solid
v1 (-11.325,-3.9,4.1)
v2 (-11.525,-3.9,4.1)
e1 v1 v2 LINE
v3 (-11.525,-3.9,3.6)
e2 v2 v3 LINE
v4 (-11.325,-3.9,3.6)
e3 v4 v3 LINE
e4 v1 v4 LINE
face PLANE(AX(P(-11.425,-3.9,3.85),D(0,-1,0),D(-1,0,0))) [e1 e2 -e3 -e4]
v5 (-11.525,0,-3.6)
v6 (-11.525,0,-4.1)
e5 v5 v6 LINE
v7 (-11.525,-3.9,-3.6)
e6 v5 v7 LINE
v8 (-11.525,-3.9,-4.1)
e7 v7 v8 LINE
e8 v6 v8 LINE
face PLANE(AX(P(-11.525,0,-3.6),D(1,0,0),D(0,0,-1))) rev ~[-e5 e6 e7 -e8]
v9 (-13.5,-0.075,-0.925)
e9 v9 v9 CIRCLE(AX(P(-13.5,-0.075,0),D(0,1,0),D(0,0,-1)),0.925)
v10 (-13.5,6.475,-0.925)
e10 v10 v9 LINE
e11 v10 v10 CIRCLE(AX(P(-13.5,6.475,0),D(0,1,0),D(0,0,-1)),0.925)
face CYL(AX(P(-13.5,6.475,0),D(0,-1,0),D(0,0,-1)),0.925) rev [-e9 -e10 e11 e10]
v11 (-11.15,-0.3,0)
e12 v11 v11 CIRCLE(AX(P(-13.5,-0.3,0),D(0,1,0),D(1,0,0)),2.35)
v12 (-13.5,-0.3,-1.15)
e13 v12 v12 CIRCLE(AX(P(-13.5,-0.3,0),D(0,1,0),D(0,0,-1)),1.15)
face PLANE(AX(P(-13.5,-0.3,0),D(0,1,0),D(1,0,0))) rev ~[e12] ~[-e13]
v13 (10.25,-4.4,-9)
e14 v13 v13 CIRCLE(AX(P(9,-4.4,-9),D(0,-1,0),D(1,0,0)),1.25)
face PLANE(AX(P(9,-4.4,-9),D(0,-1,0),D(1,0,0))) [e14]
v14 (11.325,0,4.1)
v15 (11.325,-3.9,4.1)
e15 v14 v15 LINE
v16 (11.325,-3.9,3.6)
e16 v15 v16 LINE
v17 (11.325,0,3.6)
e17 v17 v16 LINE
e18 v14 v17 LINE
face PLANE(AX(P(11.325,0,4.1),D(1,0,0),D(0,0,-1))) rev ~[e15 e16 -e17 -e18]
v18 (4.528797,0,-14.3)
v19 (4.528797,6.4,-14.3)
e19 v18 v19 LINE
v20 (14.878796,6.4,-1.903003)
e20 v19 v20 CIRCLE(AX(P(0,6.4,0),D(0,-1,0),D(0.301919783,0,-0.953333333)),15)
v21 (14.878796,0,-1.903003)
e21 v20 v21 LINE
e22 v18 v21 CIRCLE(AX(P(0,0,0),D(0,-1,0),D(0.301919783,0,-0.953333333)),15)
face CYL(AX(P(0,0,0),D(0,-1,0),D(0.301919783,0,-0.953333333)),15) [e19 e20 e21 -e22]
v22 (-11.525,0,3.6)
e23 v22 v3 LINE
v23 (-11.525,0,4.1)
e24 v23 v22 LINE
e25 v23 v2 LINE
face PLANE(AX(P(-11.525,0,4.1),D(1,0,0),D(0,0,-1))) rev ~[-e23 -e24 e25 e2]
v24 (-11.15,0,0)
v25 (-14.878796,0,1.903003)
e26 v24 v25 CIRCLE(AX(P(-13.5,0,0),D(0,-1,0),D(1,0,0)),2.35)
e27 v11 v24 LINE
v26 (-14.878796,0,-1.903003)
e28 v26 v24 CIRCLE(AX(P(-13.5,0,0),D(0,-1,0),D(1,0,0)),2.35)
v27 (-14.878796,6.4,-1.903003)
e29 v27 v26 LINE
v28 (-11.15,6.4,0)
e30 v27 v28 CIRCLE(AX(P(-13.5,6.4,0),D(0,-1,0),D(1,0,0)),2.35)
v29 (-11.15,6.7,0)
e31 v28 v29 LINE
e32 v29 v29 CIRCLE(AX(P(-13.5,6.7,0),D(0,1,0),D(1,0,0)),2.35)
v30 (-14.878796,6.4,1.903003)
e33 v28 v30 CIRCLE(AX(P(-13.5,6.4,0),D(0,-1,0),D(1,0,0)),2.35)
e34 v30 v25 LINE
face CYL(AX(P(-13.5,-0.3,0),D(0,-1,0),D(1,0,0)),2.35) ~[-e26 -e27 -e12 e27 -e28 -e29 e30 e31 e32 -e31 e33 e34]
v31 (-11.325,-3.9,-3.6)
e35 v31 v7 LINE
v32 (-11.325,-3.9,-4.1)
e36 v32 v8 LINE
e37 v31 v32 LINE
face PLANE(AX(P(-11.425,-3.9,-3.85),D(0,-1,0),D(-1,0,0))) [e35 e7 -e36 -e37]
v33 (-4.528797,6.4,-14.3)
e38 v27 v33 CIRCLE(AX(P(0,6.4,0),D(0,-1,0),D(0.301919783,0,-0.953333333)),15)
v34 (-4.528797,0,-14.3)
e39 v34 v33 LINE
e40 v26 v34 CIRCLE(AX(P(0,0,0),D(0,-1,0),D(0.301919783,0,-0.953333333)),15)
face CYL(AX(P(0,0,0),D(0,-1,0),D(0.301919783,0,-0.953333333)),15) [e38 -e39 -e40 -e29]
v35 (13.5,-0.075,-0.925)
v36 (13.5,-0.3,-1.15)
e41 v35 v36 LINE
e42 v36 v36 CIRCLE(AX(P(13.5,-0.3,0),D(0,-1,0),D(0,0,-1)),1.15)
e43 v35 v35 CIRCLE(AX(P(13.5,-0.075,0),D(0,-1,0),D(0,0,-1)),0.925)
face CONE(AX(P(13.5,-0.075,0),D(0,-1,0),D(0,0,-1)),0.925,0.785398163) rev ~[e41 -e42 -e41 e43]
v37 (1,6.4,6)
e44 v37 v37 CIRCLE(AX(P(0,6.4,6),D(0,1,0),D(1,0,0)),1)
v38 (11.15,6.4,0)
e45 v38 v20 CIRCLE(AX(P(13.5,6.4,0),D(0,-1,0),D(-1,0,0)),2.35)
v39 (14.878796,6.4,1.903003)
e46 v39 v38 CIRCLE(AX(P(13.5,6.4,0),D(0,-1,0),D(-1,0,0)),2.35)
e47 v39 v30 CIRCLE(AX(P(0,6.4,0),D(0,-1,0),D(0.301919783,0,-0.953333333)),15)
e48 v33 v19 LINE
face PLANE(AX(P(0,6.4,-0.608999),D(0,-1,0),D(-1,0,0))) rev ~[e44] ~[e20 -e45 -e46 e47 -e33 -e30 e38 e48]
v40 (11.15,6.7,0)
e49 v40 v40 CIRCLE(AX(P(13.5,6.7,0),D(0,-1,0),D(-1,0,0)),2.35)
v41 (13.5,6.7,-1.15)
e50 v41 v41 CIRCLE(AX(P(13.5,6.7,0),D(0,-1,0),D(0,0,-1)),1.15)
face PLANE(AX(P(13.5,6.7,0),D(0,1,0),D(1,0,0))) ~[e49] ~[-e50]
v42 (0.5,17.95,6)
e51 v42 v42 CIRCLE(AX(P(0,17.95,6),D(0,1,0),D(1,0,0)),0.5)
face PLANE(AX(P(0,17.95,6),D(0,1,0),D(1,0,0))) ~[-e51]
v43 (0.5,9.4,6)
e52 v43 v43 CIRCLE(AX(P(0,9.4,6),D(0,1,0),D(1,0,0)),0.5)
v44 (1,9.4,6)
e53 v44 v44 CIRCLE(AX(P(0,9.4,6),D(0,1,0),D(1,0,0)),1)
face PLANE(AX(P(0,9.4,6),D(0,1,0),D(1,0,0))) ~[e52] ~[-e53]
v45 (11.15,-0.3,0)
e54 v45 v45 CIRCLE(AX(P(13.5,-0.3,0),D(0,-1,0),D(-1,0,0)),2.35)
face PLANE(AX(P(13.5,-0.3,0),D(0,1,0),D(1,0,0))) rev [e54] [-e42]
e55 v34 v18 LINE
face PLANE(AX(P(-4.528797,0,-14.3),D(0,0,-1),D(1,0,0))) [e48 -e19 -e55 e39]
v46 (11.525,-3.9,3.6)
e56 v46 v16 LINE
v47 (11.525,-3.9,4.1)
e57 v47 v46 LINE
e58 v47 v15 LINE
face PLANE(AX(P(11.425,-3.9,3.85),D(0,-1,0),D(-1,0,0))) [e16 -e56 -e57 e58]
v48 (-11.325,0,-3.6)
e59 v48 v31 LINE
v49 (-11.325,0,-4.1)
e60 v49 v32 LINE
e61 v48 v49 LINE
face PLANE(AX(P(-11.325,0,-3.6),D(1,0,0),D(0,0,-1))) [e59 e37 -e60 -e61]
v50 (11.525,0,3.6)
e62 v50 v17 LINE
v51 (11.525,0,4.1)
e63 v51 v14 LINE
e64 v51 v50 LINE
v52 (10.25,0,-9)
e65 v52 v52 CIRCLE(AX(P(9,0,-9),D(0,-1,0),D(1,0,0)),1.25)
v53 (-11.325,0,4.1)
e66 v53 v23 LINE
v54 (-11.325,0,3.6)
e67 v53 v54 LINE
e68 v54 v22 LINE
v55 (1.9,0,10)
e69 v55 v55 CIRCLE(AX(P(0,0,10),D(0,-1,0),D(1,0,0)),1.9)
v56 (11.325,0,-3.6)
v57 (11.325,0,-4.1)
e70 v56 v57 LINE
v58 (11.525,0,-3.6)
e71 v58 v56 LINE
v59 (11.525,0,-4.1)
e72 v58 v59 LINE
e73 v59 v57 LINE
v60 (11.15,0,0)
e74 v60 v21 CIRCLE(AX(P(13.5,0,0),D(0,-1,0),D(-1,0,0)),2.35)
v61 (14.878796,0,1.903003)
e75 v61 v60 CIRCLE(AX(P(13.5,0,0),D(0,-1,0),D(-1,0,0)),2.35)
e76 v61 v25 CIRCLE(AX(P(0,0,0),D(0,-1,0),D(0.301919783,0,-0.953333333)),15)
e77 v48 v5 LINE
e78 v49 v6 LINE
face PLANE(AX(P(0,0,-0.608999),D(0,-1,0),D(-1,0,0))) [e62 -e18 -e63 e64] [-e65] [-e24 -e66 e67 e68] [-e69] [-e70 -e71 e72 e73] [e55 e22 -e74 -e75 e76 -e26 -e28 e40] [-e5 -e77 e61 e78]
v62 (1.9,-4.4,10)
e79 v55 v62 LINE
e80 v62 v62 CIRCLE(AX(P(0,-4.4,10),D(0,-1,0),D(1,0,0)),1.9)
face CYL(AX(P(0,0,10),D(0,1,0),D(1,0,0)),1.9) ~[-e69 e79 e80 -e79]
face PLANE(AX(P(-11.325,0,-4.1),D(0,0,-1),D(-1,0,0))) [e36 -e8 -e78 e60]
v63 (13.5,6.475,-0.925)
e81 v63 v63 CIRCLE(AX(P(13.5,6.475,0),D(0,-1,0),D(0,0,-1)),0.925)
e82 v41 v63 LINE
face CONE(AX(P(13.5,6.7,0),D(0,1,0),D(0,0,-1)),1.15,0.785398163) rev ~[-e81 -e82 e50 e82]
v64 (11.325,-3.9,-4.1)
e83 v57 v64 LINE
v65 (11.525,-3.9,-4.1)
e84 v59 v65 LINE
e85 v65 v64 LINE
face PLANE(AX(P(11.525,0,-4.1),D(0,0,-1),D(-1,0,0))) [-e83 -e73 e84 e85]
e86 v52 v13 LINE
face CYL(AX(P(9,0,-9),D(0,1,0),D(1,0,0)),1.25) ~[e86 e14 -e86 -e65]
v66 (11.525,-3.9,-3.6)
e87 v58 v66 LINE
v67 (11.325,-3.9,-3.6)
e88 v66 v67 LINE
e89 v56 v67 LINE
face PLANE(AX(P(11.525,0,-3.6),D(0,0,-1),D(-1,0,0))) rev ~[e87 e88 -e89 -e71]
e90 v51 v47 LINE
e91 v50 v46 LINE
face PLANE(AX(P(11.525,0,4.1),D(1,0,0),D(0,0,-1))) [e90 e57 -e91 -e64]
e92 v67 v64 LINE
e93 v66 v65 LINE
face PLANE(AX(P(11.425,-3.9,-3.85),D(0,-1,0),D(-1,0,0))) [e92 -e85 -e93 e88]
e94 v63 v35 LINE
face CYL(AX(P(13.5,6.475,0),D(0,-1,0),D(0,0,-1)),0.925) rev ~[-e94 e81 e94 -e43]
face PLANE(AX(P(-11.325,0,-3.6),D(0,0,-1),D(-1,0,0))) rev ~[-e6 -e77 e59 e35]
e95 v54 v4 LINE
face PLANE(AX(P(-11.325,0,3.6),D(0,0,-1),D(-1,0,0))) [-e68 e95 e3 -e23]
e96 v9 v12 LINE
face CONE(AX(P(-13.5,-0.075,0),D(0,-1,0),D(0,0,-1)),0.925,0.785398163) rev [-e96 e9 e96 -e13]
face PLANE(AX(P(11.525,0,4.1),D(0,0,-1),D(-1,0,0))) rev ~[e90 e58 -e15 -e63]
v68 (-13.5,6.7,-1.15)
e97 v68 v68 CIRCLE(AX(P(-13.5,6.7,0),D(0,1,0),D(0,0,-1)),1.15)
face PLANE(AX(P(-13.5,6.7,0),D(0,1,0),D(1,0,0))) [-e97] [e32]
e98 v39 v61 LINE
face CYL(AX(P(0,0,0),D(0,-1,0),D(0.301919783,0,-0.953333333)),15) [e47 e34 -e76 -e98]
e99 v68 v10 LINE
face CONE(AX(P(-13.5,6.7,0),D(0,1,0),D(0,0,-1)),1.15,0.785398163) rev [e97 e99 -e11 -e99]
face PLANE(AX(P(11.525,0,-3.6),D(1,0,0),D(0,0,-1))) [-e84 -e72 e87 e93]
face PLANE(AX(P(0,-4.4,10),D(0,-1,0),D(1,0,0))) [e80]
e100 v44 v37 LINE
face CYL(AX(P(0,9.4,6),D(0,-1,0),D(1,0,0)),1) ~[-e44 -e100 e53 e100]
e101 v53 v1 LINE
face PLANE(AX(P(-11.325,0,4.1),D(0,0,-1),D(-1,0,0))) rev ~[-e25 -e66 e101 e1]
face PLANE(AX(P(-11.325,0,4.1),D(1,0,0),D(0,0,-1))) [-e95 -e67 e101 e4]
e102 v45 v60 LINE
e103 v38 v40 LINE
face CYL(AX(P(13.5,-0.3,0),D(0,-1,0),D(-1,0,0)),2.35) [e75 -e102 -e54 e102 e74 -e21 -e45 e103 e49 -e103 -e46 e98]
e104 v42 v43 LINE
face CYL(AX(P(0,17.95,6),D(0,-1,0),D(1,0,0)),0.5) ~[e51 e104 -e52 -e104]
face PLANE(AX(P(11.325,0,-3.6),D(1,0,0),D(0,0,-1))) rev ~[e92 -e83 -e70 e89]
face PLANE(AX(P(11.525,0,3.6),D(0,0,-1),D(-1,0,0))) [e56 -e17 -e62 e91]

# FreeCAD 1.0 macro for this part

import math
import FreeCAD as App
import Part
import Sketcher
from FreeCAD import Vector


def add_polygon(sketch, points):
    """Adds a closed chain of lines whose ends are joined by coincident constraints."""
    first, n = sketch.GeometryCount, len(points)
    for a, b in zip(points, points[1:] + points[:1]):
        sketch.addGeometry(Part.LineSegment(App.Vector(*a, 0), App.Vector(*b, 0)), False)
    for i in range(n):
        sketch.addConstraint(Sketcher.Constraint("Coincident", first + i, 2, first + (i + 1) % n, 1))

doc = App.newDocument("Part")
body = doc.addObject("PartDesign::Body", "Body")

# Sketch on XZ plane
sketch1 = doc.addObject("Sketcher::SketchObject", "Sketch")
body.addObject(sketch1)
sketch1.AttachmentSupport = (doc.XZ_Plane, [""])
sketch1.MapMode = "FlatFace"
sketch1.addGeometry([
    Part.LineSegment(Vector(5, -14, 0), Vector(-5, -14, 0)),
    Part.ArcOfCircle(Part.Circle(Vector(0, 0, 0), Vector(0, 0, 1), 15), math.radians(-72), math.radians(252)),
], False)
sketch1.addConstraint([
    Sketcher.Constraint("Coincident", 0, 1, 1, 1),
    Sketcher.Constraint("Coincident", 1, 2, 0, 2),
    Sketcher.Constraint("Horizontal", 0),
    Sketcher.Constraint("Coincident", 1, 3, -1, 1),
    Sketcher.Constraint("Radius", 1, 15.0),
    Sketcher.Constraint("DistanceY", 0, 1, -1, 1, 14.3),
])
pad1 = doc.addObject("PartDesign::Pad", "Pad")
body.addObject(pad1)
pad1.Profile = sketch1
pad1.Length = 6.4
pad1.Reversed = True

# Sketch on XY plane
sketch2 = doc.addObject("Sketcher::SketchObject", "Sketch001")
body.addObject(sketch2)
sketch2.AttachmentSupport = (doc.XY_Plane, [""])
sketch2.MapMode = "FlatFace"
sketch2.AttachmentOffset = App.Placement(Vector(0, 0, 6), App.Rotation())
add_polygon(sketch2, [(0.5, 17.9), (0, 17.9), (0, 6.4), (1, 6.4), (1, 9.4), (0.5, 9.4)])  # lines 0-5
sketch2.addConstraint([
    Sketcher.Constraint("Horizontal", 0),
    Sketcher.Constraint("Vertical", 1),
    Sketcher.Constraint("Horizontal", 2),
    Sketcher.Constraint("Vertical", 3),
    Sketcher.Constraint("Horizontal", 4),
    Sketcher.Constraint("Vertical", 5),
    Sketcher.Constraint("PointOnObject", 0, 2, -2),
    Sketcher.Constraint("Equal", 0, 4),
    Sketcher.Constraint("DistanceX", 2, 1, 2, 2, 1.0),
    Sketcher.Constraint("DistanceY", 3, 1, 3, 2, 3.0),
    Sketcher.Constraint("DistanceY", 1, 2, 1, 1, 11.55),
    Sketcher.Constraint("DistanceY", -1, 1, 1, 2, 6.4),
])
revolution = doc.addObject("PartDesign::Revolution", "Revolution")
body.addObject(revolution)
revolution.Profile = sketch2
revolution.ReferenceAxis = (sketch2, ["V_Axis"])
revolution.Angle = 360

# Sketch on XZ plane
sketch3 = doc.addObject("Sketcher::SketchObject", "Sketch002")
body.addObject(sketch3)
sketch3.AttachmentSupport = (doc.XZ_Plane, [""])
sketch3.MapMode = "FlatFace"
sketch3.AttachmentOffset = App.Placement(Vector(0, 0, 0.3), App.Rotation())
sketch3.addGeometry(Part.Circle(Vector(-13.5, 0, 0), Vector(0, 0, 1), 2.4), False)
sketch3.addConstraint([
    Sketcher.Constraint("PointOnObject", 0, 3, -1),
    Sketcher.Constraint("Diameter", 0, 4.7),
    Sketcher.Constraint("DistanceX", 0, 3, -1, 1, 13.5),
])
pad2 = doc.addObject("PartDesign::Pad", "Pad001")
body.addObject(pad2)
pad2.Profile = sketch3
pad2.Length = 7
pad2.Reversed = True

# Sketch on YZ plane
sketch4 = doc.addObject("Sketcher::SketchObject", "Sketch003")
body.addObject(sketch4)
sketch4.AttachmentSupport = (doc.YZ_Plane, [""])
sketch4.MapMode = "FlatFace"
sketch4.AttachmentOffset = App.Placement(Vector(0, 0, -13.5), App.Rotation())
add_polygon(sketch4, [(6.7, 0), (-0.3, 0), (-0.3, -1.15), (-0.07, -0.93), (6.47, -0.93), (6.7, -1.15)])  # lines 0-5
sketch4.addConstraint([
    Sketcher.Constraint("Horizontal", 0),
    Sketcher.Constraint("Vertical", 1),
    Sketcher.Constraint("Horizontal", 3),
    Sketcher.Constraint("Vertical", 5),
    Sketcher.Constraint("PointOnObject", 0, 2, -1),
    Sketcher.Constraint("Perpendicular", 2, 4),
    Sketcher.Constraint("Horizontal", 1, 2, 4, 2),
    Sketcher.Constraint("Equal", 2, 4),
    Sketcher.Constraint("DistanceX", 0, 2, 0, 1, 7.0),
    Sketcher.Constraint("DistanceX", 3, 1, 3, 2, 6.55),
    Sketcher.Constraint("DistanceY", 1, 2, 1, 1, 1.15),
    Sketcher.Constraint("DistanceX", 0, 2, -1, 1, 0.3),
])
groove = doc.addObject("PartDesign::Groove", "Groove")
body.addObject(groove)
groove.Profile = sketch4
groove.ReferenceAxis = (sketch4, ["H_Axis"])
groove.Angle = 360
doc.recompute()

mirrored = doc.addObject("PartDesign::Mirrored", "Mirrored")
body.addObject(mirrored)
mirrored.Originals = [pad2, groove]
mirrored.MirrorPlane = (doc.YZ_Plane, [""])
body.Tip = mirrored

# Sketch on XZ plane
sketch5 = doc.addObject("Sketcher::SketchObject", "Sketch004")
body.addObject(sketch5)
sketch5.AttachmentSupport = (doc.XZ_Plane, [""])
sketch5.MapMode = "FlatFace"
sketch5.addGeometry([
    Part.Circle(Vector(0, 10, 0), Vector(0, 0, 1), 1.9),
    Part.Circle(Vector(9, -9, 0), Vector(0, 0, 1), 1.2),
], False)
sketch5.addConstraint([
    Sketcher.Constraint("PointOnObject", 0, 3, -2),
    Sketcher.Constraint("Diameter", 0, 3.8),
    Sketcher.Constraint("Diameter", 1, 2.5),
    Sketcher.Constraint("DistanceY", -1, 1, 0, 3, 10.0),
    Sketcher.Constraint("DistanceX", -1, 1, 1, 3, 9.0),
    Sketcher.Constraint("DistanceY", 1, 3, -1, 1, 9.0),
])
pad3 = doc.addObject("PartDesign::Pad", "Pad002")
body.addObject(pad3)
pad3.Profile = sketch5
pad3.Length = 4.4

# Sketch on XZ plane
sketch6 = doc.addObject("Sketcher::SketchObject", "Sketch005")
body.addObject(sketch6)
sketch6.AttachmentSupport = (doc.XZ_Plane, [""])
sketch6.MapMode = "FlatFace"
add_polygon(sketch6, [(11.53, 3.6), (11.53, 4.1), (11.32, 4.1), (11.32, 3.6)])  # lines 0-3
add_polygon(sketch6, [(-11.32, 3.6), (-11.32, 4.1), (-11.53, 4.1), (-11.53, 3.6)])  # lines 4-7
add_polygon(sketch6, [(11.53, -4.1), (11.53, -3.6), (11.32, -3.6), (11.32, -4.1)])  # lines 8-11
add_polygon(sketch6, [(-11.32, -4.1), (-11.32, -3.6), (-11.53, -3.6), (-11.53, -4.1)])  # lines 12-15
sketch6.addConstraint([
    Sketcher.Constraint("Vertical", 0),
    Sketcher.Constraint("Horizontal", 1),
    Sketcher.Constraint("Vertical", 2),
    Sketcher.Constraint("Horizontal", 3),
    Sketcher.Constraint("Vertical", 4),
    Sketcher.Constraint("Horizontal", 5),
    Sketcher.Constraint("Vertical", 6),
    Sketcher.Constraint("Horizontal", 7),
    Sketcher.Constraint("Vertical", 8),
    Sketcher.Constraint("Horizontal", 9),
    Sketcher.Constraint("Vertical", 10),
    Sketcher.Constraint("Horizontal", 11),
    Sketcher.Constraint("Vertical", 12),
    Sketcher.Constraint("Horizontal", 13),
    Sketcher.Constraint("Vertical", 14),
    Sketcher.Constraint("Horizontal", 15),
    Sketcher.Constraint("Symmetric", 6, 2, 8, 2, -1, 1),
    Sketcher.Constraint("Symmetric", 4, 2, 10, 2, -1, 1),
    Sketcher.Constraint("Symmetric", 2, 2, 12, 2, -1, 1),
    Sketcher.Constraint("Symmetric", 0, 2, 14, 2, -1, 1),
    Sketcher.Constraint("Symmetric", 1, 2, 4, 2, -2),
    Sketcher.Constraint("Symmetric", 3, 2, 6, 2, -2),
    Sketcher.Constraint("DistanceX", 1, 2, 1, 1, 0.2),
    Sketcher.Constraint("DistanceY", 0, 1, 0, 2, 0.5),
    Sketcher.Constraint("DistanceY", -1, 1, 0, 2, 4.1),
    Sketcher.Constraint("DistanceX", 4, 2, 1, 2, 22.65),
])
pad4 = doc.addObject("PartDesign::Pad", "Pad003")
body.addObject(pad4)
pad4.Profile = sketch6
pad4.Length = 3.9

doc.recompute()
